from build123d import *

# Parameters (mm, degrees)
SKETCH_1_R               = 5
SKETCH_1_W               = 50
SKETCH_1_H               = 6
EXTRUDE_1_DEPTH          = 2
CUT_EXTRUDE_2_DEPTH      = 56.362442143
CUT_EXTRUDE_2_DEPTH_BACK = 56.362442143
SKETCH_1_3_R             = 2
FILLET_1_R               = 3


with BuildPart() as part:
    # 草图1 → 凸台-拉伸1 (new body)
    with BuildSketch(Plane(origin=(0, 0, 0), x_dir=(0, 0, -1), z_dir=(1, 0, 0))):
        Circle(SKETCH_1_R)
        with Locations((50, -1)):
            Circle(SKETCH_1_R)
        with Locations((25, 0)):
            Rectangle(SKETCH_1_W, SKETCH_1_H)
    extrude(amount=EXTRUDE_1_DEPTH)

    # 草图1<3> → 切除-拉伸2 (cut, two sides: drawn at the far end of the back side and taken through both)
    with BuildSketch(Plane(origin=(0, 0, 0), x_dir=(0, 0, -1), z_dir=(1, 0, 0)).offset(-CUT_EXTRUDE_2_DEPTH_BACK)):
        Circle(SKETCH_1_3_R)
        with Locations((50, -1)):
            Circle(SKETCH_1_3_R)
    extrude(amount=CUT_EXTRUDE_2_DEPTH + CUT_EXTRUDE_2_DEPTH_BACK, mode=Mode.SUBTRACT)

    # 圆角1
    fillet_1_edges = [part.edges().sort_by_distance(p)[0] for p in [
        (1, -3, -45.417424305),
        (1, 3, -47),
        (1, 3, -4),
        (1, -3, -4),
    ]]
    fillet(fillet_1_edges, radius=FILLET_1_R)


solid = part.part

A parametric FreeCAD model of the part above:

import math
import FreeCAD as App
import Part
import Sketcher


def edges_at(feature, points):
    """Names of the edges that pass closest to the given points."""
    edges = feature.Shape.Edges
    near = lambda p: min(range(len(edges)), key=lambda i: edges[i].distToShape(Part.Vertex(*p))[0])
    return sorted({f"Edge{near(p) + 1}" for p in points})

doc = App.newDocument("Part")
body = doc.addObject("PartDesign::Body", "Body")

# Sketch on YZ plane
sketch1 = body.newObject("Sketcher::SketchObject", "Sketch")
sketch1.AttachmentSupport = (doc.getObject("YZ_Plane"), [""])
sketch1.MapMode = "FlatFace"
sketch1.addGeometry(Part.LineSegment(App.Vector(-3, -4, 0), App.Vector(-3, -45, 0)), False)
sketch1.addGeometry(Part.ArcOfCircle(Part.Circle(App.Vector(-1, -50, 0), App.Vector(0, 0, 1), 5), math.radians(114), math.radians(397)), False)
sketch1.addGeometry(Part.LineSegment(App.Vector(3, -47, 0), App.Vector(3, -4, 0)), False)
sketch1.addGeometry(Part.ArcOfCircle(Part.Circle(App.Vector(0, 0, 0), App.Vector(0, 0, 1), 5), math.radians(-53), math.radians(233)), False)
sketch1.addConstraint(Sketcher.Constraint("Coincident", 0, 2, 1, 1))
sketch1.addConstraint(Sketcher.Constraint("Coincident", 1, 2, 2, 1))
sketch1.addConstraint(Sketcher.Constraint("Coincident", 2, 2, 3, 1))
sketch1.addConstraint(Sketcher.Constraint("Coincident", 3, 2, 0, 1))
sketch1.addConstraint(Sketcher.Constraint("Vertical", 0))
sketch1.addConstraint(Sketcher.Constraint("Vertical", 2))
sketch1.addConstraint(Sketcher.Constraint("Coincident", 3, 3, -1, 1))
sketch1.addConstraint(Sketcher.Constraint("Equal", 1, 3))
sketch1.addConstraint(Sketcher.Constraint("Horizontal", 2, 2, 3, 2))
sketch1.addConstraint(Sketcher.Constraint("Radius", 1, 5.0))
sketch1.addConstraint(Sketcher.Constraint("DistanceY", 2, 1, 2, 2, 43.0))
sketch1.addConstraint(Sketcher.Constraint("DistanceX", 1, 3, -1, 1, 1.0))
sketch1.addConstraint(Sketcher.Constraint("DistanceY", 1, 3, -1, 1, 50.0))
pad1 = body.newObject("PartDesign::Pad", "Pad")
pad1.Profile = sketch1
pad1.Length = 2

# Sketch on YZ plane
sketch2 = body.newObject("Sketcher::SketchObject", "Sketch001")
sketch2.AttachmentSupport = (doc.getObject("YZ_Plane"), [""])
sketch2.MapMode = "FlatFace"
sketch2.addGeometry(Part.Circle(App.Vector(0, 0, 0), App.Vector(0, 0, 1), 2), False)
sketch2.addGeometry(Part.Circle(App.Vector(-1, -50, 0), App.Vector(0, 0, 1), 2), False)
sketch2.addConstraint(Sketcher.Constraint("Coincident", 0, 3, -1, 1))
sketch2.addConstraint(Sketcher.Constraint("Equal", 0, 1))
sketch2.addConstraint(Sketcher.Constraint("Diameter", 0, 4.0))
sketch2.addConstraint(Sketcher.Constraint("DistanceX", 1, 3, -1, 1, 1.0))
sketch2.addConstraint(Sketcher.Constraint("DistanceY", 1, 3, -1, 1, 50.0))
pocket1 = body.newObject("PartDesign::Pocket", "Pocket")
pocket1.Profile = sketch2
pocket1.Type = "ThroughAll"
pocket1.Midplane = True
doc.recompute()

fillet = body.newObject("PartDesign::Fillet", "Fillet")
fillet.Base = (pocket1, edges_at(pocket1, [
    (1, -3, -45.417),
    (1, 3, -47),
    (1, 3, -4),
    (1, -3, -4),
]))
fillet.Radius = 3

doc.recompute()
